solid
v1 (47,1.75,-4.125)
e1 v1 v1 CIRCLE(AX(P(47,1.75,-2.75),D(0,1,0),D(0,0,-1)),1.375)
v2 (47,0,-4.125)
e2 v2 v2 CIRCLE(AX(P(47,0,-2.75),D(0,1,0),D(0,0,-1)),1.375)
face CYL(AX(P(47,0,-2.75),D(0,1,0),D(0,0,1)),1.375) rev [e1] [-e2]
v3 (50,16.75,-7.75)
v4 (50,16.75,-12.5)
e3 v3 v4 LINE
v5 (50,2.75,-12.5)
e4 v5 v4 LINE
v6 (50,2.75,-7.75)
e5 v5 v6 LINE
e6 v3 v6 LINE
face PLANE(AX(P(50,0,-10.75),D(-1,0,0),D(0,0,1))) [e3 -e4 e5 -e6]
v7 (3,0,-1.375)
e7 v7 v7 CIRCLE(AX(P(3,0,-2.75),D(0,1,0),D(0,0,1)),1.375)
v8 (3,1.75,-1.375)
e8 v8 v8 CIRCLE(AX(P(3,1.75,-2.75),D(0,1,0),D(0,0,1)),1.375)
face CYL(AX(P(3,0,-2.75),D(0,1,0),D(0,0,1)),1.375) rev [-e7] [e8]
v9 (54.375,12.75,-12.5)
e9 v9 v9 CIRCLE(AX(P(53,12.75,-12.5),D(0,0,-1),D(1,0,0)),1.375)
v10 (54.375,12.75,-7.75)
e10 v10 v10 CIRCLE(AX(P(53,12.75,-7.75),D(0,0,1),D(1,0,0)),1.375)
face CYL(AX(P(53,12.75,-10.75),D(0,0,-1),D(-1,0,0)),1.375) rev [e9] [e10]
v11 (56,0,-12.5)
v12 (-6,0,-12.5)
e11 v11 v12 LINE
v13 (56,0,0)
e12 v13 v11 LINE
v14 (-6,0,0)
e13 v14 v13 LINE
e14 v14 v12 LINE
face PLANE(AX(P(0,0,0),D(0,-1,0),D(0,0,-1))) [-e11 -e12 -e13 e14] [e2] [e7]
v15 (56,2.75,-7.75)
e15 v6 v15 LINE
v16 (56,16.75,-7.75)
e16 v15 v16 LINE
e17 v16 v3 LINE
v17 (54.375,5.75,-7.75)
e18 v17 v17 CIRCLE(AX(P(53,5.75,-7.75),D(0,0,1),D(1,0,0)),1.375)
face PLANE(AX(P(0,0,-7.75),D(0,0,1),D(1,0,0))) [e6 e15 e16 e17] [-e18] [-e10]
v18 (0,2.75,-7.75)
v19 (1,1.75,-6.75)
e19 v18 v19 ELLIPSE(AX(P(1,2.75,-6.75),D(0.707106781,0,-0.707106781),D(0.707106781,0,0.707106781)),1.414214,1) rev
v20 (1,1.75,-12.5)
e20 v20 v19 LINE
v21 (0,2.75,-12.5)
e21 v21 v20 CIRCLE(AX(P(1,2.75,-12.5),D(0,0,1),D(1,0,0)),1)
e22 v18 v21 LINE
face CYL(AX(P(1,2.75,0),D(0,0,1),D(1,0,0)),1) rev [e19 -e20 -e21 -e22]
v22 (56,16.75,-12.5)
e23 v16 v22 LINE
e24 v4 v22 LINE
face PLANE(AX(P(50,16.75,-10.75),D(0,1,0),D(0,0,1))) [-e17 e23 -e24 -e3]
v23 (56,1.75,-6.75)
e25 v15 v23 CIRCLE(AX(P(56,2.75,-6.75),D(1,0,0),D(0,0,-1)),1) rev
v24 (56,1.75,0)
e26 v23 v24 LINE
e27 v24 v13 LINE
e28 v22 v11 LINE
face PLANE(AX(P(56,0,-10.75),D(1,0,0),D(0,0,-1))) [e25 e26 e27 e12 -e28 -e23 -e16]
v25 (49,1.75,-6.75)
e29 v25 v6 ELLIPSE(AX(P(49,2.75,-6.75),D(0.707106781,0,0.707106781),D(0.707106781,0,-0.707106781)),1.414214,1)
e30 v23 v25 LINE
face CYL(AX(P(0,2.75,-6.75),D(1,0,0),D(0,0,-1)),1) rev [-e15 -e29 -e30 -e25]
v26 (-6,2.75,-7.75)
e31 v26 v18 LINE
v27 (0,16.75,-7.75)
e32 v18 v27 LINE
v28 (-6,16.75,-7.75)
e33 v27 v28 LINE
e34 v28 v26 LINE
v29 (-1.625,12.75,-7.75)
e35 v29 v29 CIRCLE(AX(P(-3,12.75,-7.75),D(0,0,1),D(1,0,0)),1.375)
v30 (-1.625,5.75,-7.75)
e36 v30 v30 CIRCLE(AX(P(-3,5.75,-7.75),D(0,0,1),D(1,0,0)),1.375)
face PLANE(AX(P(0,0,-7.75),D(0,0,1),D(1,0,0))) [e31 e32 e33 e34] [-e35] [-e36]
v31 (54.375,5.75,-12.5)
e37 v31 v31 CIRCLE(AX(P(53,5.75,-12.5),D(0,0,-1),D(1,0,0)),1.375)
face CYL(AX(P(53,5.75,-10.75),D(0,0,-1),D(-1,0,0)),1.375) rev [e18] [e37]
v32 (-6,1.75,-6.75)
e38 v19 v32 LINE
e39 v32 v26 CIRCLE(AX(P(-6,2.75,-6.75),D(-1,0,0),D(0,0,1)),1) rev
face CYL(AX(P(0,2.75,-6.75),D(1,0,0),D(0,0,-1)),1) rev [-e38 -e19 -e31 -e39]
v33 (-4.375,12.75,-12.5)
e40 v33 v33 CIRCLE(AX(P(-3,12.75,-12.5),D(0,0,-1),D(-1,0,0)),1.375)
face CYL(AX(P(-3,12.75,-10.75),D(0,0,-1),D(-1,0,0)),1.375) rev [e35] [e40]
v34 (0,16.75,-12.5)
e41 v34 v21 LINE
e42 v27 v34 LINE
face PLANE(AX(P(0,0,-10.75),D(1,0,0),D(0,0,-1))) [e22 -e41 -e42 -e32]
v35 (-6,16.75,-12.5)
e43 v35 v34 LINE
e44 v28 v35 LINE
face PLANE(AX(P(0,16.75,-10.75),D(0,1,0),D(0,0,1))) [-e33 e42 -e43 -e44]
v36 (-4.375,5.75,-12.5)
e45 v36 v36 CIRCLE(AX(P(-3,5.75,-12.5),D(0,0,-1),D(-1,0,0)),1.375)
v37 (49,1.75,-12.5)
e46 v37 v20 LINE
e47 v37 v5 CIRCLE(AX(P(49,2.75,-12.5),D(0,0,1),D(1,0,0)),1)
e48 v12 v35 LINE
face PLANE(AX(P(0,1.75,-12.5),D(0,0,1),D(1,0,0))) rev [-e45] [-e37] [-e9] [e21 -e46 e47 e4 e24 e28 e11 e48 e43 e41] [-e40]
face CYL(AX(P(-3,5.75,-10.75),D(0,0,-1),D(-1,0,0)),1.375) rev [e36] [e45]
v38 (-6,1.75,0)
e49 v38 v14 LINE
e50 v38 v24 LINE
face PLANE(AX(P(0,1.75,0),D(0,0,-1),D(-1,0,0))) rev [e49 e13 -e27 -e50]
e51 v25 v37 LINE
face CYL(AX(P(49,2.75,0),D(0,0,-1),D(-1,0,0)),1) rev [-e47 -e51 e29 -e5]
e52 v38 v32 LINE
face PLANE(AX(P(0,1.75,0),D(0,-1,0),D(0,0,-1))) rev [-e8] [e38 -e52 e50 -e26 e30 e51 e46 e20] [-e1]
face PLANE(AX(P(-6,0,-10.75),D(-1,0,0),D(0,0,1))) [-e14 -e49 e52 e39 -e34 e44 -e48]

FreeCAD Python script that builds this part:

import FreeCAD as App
import Part
import Sketcher
from FreeCAD import Vector


def edges_at(feature, points):
    """Names of the edges that pass closest to the given points."""
    edges = feature.Shape.Edges
    near = lambda p: min(range(len(edges)), key=lambda i: edges[i].distToShape(Part.Vertex(*p))[0])
    return sorted({f"Edge{near(p) + 1}" for p in points})

doc = App.newDocument("Part")
body = doc.addObject("PartDesign::Body", "Body")

sketch1 = doc.addObject("Sketcher::SketchObject", "Sketch")
body.addObject(sketch1)
sketch1.AttachmentSupport = (doc.XZ_Plane, [""])
sketch1.MapMode = "FlatFace"
sketch1.addGeometry([
    Part.LineSegment(Vector(0, -12, 0), Vector(0, 0, 0)),
    Part.LineSegment(Vector(0, 0, 0), Vector(50, 0, 0)),
    Part.LineSegment(Vector(50, 0, 0), Vector(50, -12, 0)),
    Part.LineSegment(Vector(50, -12, 0), Vector(0, -12, 0)),
], False)
sketch1.addConstraint([
    Sketcher.Constraint("Coincident", 0, 2, 1, 1),
    Sketcher.Constraint("Coincident", 1, 2, 2, 1),
    Sketcher.Constraint("Coincident", 2, 2, 3, 1),
    Sketcher.Constraint("Coincident", 3, 2, 0, 1),
    Sketcher.Constraint("Vertical", 0),
    Sketcher.Constraint("Horizontal", 1),
    Sketcher.Constraint("Vertical", 2),
    Sketcher.Constraint("Horizontal", 3),
    Sketcher.Constraint("Coincident", 0, 2, -1, 1),
    Sketcher.Constraint("DistanceX", 1, 1, 1, 2, 50.0),
    Sketcher.Constraint("DistanceY", 0, 1, 0, 2, 12.5),
])
pad1 = doc.addObject("PartDesign::Pad", "Pad")
body.addObject(pad1)
pad1.Profile = sketch1
pad1.Length = 1.75
pad1.Reversed = True

sketch2 = doc.addObject("Sketcher::SketchObject", "Sketch001")
body.addObject(sketch2)
sketch2.AttachmentSupport = (doc.XZ_Plane, [""])
sketch2.MapMode = "FlatFace"
sketch2.AttachmentOffset = App.Placement(Vector(0, 0, -1.75), App.Rotation())
sketch2.addGeometry([
    Part.Circle(Vector(3, -2.8, 0), Vector(0, 0, 1), 1.4),
    Part.Circle(Vector(47, -2.8, 0), Vector(0, 0, 1), 1.4),
], False)
sketch2.addConstraint([
    Sketcher.Constraint("Equal", 0, 1),
    Sketcher.Constraint("Horizontal", 0, 3, 1, 3),
    Sketcher.Constraint("Diameter", 0, 2.75),
    Sketcher.Constraint("DistanceX", -1, 1, 0, 3, 3.0),
    Sketcher.Constraint("DistanceX", -1, 1, 1, 3, 47.0),
    Sketcher.Constraint("DistanceY", 0, 3, -1, 1, 2.75),
])
pocket1 = doc.addObject("PartDesign::Pocket", "Pocket")
body.addObject(pocket1)
pocket1.Profile = sketch2
pocket1.Length = 1.75
pocket1.Reversed = True

sketch3 = doc.addObject("Sketcher::SketchObject", "Sketch002")
body.addObject(sketch3)
sketch3.AttachmentSupport = (doc.XY_Plane, [""])
sketch3.MapMode = "FlatFace"
sketch3.AttachmentOffset = App.Placement(Vector(0, 0, -12.5), App.Rotation())
sketch3.addGeometry([
    Part.LineSegment(Vector(0, 16.8, 0), Vector(0, 0, 0)),
    Part.LineSegment(Vector(0, 0, 0), Vector(-6, 0, 0)),
    Part.LineSegment(Vector(-6, 0, 0), Vector(-6, 16.8, 0)),
    Part.LineSegment(Vector(-6, 16.8, 0), Vector(0, 16.8, 0)),
    Part.Circle(Vector(-3, 5.8, 0), Vector(0, 0, 1), 1.4),
    Part.Circle(Vector(-3, 12.8, 0), Vector(0, 0, 1), 1.4),
    Part.LineSegment(Vector(56, 16.8, 0), Vector(56, 0, 0)),
    Part.LineSegment(Vector(56, 0, 0), Vector(50, 0, 0)),
    Part.LineSegment(Vector(50, 0, 0), Vector(50, 16.8, 0)),
    Part.LineSegment(Vector(50, 16.8, 0), Vector(56, 16.8, 0)),
    Part.Circle(Vector(53, 5.8, 0), Vector(0, 0, 1), 1.4),
    Part.Circle(Vector(53, 12.8, 0), Vector(0, 0, 1), 1.4),
], False)
sketch3.addConstraint([
    Sketcher.Constraint("Coincident", 0, 2, 1, 1),
    Sketcher.Constraint("Coincident", 1, 2, 2, 1),
    Sketcher.Constraint("Coincident", 2, 2, 3, 1),
    Sketcher.Constraint("Coincident", 3, 2, 0, 1),
    Sketcher.Constraint("Coincident", 6, 2, 7, 1),
    Sketcher.Constraint("Coincident", 7, 2, 8, 1),
    Sketcher.Constraint("Coincident", 8, 2, 9, 1),
    Sketcher.Constraint("Coincident", 9, 2, 6, 1),
    Sketcher.Constraint("Vertical", 0),
    Sketcher.Constraint("Horizontal", 1),
    Sketcher.Constraint("Vertical", 2),
    Sketcher.Constraint("Horizontal", 3),
    Sketcher.Constraint("Vertical", 6),
    Sketcher.Constraint("Horizontal", 7),
    Sketcher.Constraint("Vertical", 8),
    Sketcher.Constraint("Horizontal", 9),
    Sketcher.Constraint("Coincident", 0, 2, -1, 1),
    Sketcher.Constraint("Equal", 4, 5),
    Sketcher.Constraint("Equal", 5, 10),
    Sketcher.Constraint("Equal", 10, 11),
    Sketcher.Constraint("PointOnObject", 6, 2, -1),
    Sketcher.Constraint("Horizontal", 4, 3, 10, 3),
    Sketcher.Constraint("Horizontal", 5, 3, 11, 3),
    Sketcher.Constraint("Horizontal", 3, 2, 8, 2),
    Sketcher.Constraint("Vertical", 4, 3, 5, 3),
    Sketcher.Constraint("Vertical", 10, 3, 11, 3),
    Sketcher.Constraint("Equal", 3, 7),
    Sketcher.Constraint("Diameter", 4, 2.75),
    Sketcher.Constraint("DistanceX", 1, 2, 1, 1, 6.0),
    Sketcher.Constraint("DistanceX", 4, 3, -1, 1, 3.0),
    Sketcher.Constraint("DistanceX", -1, 1, 10, 3, 53.0),
    Sketcher.Constraint("DistanceX", -1, 1, 6, 2, 56.0),
    Sketcher.Constraint("DistanceY", 4, 3, 5, 3, 7.0),
    Sketcher.Constraint("DistanceY", 5, 3, 2, 2, 4.0),
    Sketcher.Constraint("DistanceY", 0, 2, 0, 1, 16.75),
])
pad2 = doc.addObject("PartDesign::Pad", "Pad001")
body.addObject(pad2)
pad2.Profile = sketch3
pad2.Length = 1.75

sketch4 = doc.addObject("Sketcher::SketchObject", "Sketch003")
body.addObject(sketch4)
sketch4.AttachmentSupport = (doc.XZ_Plane, [""])
sketch4.MapMode = "FlatFace"
sketch4.AttachmentOffset = App.Placement(Vector(0, 0, -1.75), App.Rotation())
sketch4.addGeometry([
    Part.LineSegment(Vector(50, 0, 0), Vector(56, -11, 0)),
    Part.LineSegment(Vector(56, -11, 0), Vector(50, -11, 0)),
    Part.LineSegment(Vector(50, -11, 0), Vector(50, 0, 0)),
    Part.LineSegment(Vector(0, -11, 0), Vector(-6, -11, 0)),
    Part.LineSegment(Vector(-6, -11, 0), Vector(0, 0, 0)),
    Part.LineSegment(Vector(0, 0, 0), Vector(0, -11, 0)),
], False)
sketch4.addConstraint([
    Sketcher.Constraint("Coincident", 0, 2, 1, 1),
    Sketcher.Constraint("Coincident", 1, 2, 2, 1),
    Sketcher.Constraint("Coincident", 2, 2, 0, 1),
    Sketcher.Constraint("Coincident", 3, 2, 4, 1),
    Sketcher.Constraint("Coincident", 4, 2, 5, 1),
    Sketcher.Constraint("Coincident", 5, 2, 3, 1),
    Sketcher.Constraint("Horizontal", 1),
    Sketcher.Constraint("Vertical", 2),
    Sketcher.Constraint("Horizontal", 3),
    Sketcher.Constraint("Vertical", 5),
    Sketcher.Constraint("Coincident", 4, 2, -1, 1),
    Sketcher.Constraint("PointOnObject", 2, 2, -1),
    Sketcher.Constraint("Horizontal", 1, 2, 3, 2),
    Sketcher.Constraint("Equal", 1, 3),
    Sketcher.Constraint("DistanceX", 1, 2, 1, 1, 6.0),
    Sketcher.Constraint("DistanceX", -1, 1, 0, 2, 56.0),
    Sketcher.Constraint("DistanceY", 2, 1, 2, 2, 10.75),
])
pad3 = doc.addObject("PartDesign::Pad", "Pad002")
body.addObject(pad3)
pad3.Profile = sketch4
pad3.Length = 1.75

sketch5 = doc.addObject("Sketcher::SketchObject", "Sketch004")
body.addObject(sketch5)
sketch5.AttachmentSupport = (doc.XY_Plane, [""])
sketch5.MapMode = "FlatFace"
sketch5.AttachmentOffset = App.Placement(Vector(0, 0, -10.75), App.Rotation())
sketch5.addGeometry([
    Part.LineSegment(Vector(-6, 16.8, 0), Vector(-6, 1.8, 0)),
    Part.LineSegment(Vector(-6, 1.8, 0), Vector(0, 1.8, 0)),
    Part.LineSegment(Vector(0, 1.8, 0), Vector(0, 16.8, 0)),
    Part.LineSegment(Vector(0, 16.8, 0), Vector(-6, 16.8, 0)),
    Part.Circle(Vector(-3, 5.8, 0), Vector(0, 0, 1), 1.4),
    Part.Circle(Vector(-3, 12.8, 0), Vector(0, 0, 1), 1.4),
    Part.LineSegment(Vector(50, 16.8, 0), Vector(50, 1.8, 0)),
    Part.LineSegment(Vector(50, 1.8, 0), Vector(56, 1.8, 0)),
    Part.LineSegment(Vector(56, 1.8, 0), Vector(56, 16.8, 0)),
    Part.LineSegment(Vector(56, 16.8, 0), Vector(50, 16.8, 0)),
    Part.Circle(Vector(53, 5.8, 0), Vector(0, 0, 1), 1.4),
    Part.Circle(Vector(53, 12.8, 0), Vector(0, 0, 1), 1.4),
], False)
sketch5.addConstraint([
    Sketcher.Constraint("Coincident", 0, 2, 1, 1),
    Sketcher.Constraint("Coincident", 1, 2, 2, 1),
    Sketcher.Constraint("Coincident", 2, 2, 3, 1),
    Sketcher.Constraint("Coincident", 3, 2, 0, 1),
    Sketcher.Constraint("Coincident", 6, 2, 7, 1),
    Sketcher.Constraint("Coincident", 7, 2, 8, 1),
    Sketcher.Constraint("Coincident", 8, 2, 9, 1),
    Sketcher.Constraint("Coincident", 9, 2, 6, 1),
    Sketcher.Constraint("Vertical", 0),
    Sketcher.Constraint("Horizontal", 1),
    Sketcher.Constraint("Vertical", 2),
    Sketcher.Constraint("Horizontal", 3),
    Sketcher.Constraint("Vertical", 6),
    Sketcher.Constraint("Horizontal", 7),
    Sketcher.Constraint("Vertical", 8),
    Sketcher.Constraint("Horizontal", 9),
    Sketcher.Constraint("Equal", 4, 5),
    Sketcher.Constraint("Equal", 5, 10),
    Sketcher.Constraint("Equal", 10, 11),
    Sketcher.Constraint("PointOnObject", 1, 2, -2),
    Sketcher.Constraint("Horizontal", 4, 3, 10, 3),
    Sketcher.Constraint("Horizontal", 5, 3, 11, 3),
    Sketcher.Constraint("Horizontal", 1, 2, 6, 2),
    Sketcher.Constraint("Horizontal", 3, 2, 8, 2),
    Sketcher.Constraint("Vertical", 4, 3, 5, 3),
    Sketcher.Constraint("Vertical", 10, 3, 11, 3),
    Sketcher.Constraint("Equal", 3, 7),
    Sketcher.Constraint("Diameter", 4, 2.75),
    Sketcher.Constraint("DistanceX", 1, 1, 1, 2, 6.0),
    Sketcher.Constraint("DistanceY", 0, 2, 0, 1, 15.0),
    Sketcher.Constraint("DistanceX", 4, 3, -1, 1, 3.0),
    Sketcher.Constraint("DistanceX", -1, 1, 10, 3, 53.0),
    Sketcher.Constraint("DistanceX", -1, 1, 6, 2, 50.0),
    Sketcher.Constraint("DistanceY", 4, 3, 5, 3, 7.0),
    Sketcher.Constraint("DistanceY", 0, 2, 4, 3, 4.0),
    Sketcher.Constraint("DistanceY", -1, 1, 4, 3, 5.75),
])
pad4 = doc.addObject("PartDesign::Pad", "Pad003")
body.addObject(pad4)
pad4.Profile = sketch5
pad4.Length = 3

sketch6 = doc.addObject("Sketcher::SketchObject", "Sketch005")
body.addObject(sketch6)
sketch6.AttachmentSupport = (doc.XZ_Plane, [""])
sketch6.MapMode = "FlatFace"
sketch6.addGeometry([
    Part.LineSegment(Vector(-6, 0, 0), Vector(-6, -11, 0)),
    Part.LineSegment(Vector(-6, -11, 0), Vector(0, 0, 0)),
    Part.LineSegment(Vector(0, 0, 0), Vector(-6, 0, 0)),
    Part.LineSegment(Vector(56, 0, 0), Vector(50, 0, 0)),
    Part.LineSegment(Vector(50, 0, 0), Vector(56, -11, 0)),
    Part.LineSegment(Vector(56, -11, 0), Vector(56, 0, 0)),
], False)
sketch6.addConstraint([
    Sketcher.Constraint("Coincident", 0, 2, 1, 1),
    Sketcher.Constraint("Coincident", 1, 2, 2, 1),
    Sketcher.Constraint("Coincident", 2, 2, 0, 1),
    Sketcher.Constraint("Coincident", 3, 2, 4, 1),
    Sketcher.Constraint("Coincident", 4, 2, 5, 1),
    Sketcher.Constraint("Coincident", 5, 2, 3, 1),
    Sketcher.Constraint("Vertical", 0),
    Sketcher.Constraint("Horizontal", 2),
    Sketcher.Constraint("Horizontal", 3),
    Sketcher.Constraint("Vertical", 5),
    Sketcher.Constraint("Coincident", 1, 2, -1, 1),
    Sketcher.Constraint("PointOnObject", 3, 2, -1),
    Sketcher.Constraint("Horizontal", 0, 2, 4, 2),
    Sketcher.Constraint("Equal", 2, 3),
    Sketcher.Constraint("DistanceX", 2, 2, 2, 1, 6.0),
    Sketcher.Constraint("DistanceX", -1, 1, 3, 2, 50.0),
    Sketcher.Constraint("DistanceY", 0, 2, 0, 1, 10.75),
])
pad5 = doc.addObject("PartDesign::Pad", "Pad004")
body.addObject(pad5)
pad5.Profile = sketch6
pad5.Length = 1.75
pad5.Reversed = True
doc.recompute()

fillet = doc.addObject("PartDesign::Fillet", "Fillet")
body.addObject(fillet)
fillet.Base = (pad5, edges_at(pad5, [
    (53, 1.75, -7.75),
    (50, 1.75, -9.25),
    (0, 1.75, -10.125),
    (-3, 1.75, -7.75),
]))
fillet.Radius = 1

doc.recompute()
